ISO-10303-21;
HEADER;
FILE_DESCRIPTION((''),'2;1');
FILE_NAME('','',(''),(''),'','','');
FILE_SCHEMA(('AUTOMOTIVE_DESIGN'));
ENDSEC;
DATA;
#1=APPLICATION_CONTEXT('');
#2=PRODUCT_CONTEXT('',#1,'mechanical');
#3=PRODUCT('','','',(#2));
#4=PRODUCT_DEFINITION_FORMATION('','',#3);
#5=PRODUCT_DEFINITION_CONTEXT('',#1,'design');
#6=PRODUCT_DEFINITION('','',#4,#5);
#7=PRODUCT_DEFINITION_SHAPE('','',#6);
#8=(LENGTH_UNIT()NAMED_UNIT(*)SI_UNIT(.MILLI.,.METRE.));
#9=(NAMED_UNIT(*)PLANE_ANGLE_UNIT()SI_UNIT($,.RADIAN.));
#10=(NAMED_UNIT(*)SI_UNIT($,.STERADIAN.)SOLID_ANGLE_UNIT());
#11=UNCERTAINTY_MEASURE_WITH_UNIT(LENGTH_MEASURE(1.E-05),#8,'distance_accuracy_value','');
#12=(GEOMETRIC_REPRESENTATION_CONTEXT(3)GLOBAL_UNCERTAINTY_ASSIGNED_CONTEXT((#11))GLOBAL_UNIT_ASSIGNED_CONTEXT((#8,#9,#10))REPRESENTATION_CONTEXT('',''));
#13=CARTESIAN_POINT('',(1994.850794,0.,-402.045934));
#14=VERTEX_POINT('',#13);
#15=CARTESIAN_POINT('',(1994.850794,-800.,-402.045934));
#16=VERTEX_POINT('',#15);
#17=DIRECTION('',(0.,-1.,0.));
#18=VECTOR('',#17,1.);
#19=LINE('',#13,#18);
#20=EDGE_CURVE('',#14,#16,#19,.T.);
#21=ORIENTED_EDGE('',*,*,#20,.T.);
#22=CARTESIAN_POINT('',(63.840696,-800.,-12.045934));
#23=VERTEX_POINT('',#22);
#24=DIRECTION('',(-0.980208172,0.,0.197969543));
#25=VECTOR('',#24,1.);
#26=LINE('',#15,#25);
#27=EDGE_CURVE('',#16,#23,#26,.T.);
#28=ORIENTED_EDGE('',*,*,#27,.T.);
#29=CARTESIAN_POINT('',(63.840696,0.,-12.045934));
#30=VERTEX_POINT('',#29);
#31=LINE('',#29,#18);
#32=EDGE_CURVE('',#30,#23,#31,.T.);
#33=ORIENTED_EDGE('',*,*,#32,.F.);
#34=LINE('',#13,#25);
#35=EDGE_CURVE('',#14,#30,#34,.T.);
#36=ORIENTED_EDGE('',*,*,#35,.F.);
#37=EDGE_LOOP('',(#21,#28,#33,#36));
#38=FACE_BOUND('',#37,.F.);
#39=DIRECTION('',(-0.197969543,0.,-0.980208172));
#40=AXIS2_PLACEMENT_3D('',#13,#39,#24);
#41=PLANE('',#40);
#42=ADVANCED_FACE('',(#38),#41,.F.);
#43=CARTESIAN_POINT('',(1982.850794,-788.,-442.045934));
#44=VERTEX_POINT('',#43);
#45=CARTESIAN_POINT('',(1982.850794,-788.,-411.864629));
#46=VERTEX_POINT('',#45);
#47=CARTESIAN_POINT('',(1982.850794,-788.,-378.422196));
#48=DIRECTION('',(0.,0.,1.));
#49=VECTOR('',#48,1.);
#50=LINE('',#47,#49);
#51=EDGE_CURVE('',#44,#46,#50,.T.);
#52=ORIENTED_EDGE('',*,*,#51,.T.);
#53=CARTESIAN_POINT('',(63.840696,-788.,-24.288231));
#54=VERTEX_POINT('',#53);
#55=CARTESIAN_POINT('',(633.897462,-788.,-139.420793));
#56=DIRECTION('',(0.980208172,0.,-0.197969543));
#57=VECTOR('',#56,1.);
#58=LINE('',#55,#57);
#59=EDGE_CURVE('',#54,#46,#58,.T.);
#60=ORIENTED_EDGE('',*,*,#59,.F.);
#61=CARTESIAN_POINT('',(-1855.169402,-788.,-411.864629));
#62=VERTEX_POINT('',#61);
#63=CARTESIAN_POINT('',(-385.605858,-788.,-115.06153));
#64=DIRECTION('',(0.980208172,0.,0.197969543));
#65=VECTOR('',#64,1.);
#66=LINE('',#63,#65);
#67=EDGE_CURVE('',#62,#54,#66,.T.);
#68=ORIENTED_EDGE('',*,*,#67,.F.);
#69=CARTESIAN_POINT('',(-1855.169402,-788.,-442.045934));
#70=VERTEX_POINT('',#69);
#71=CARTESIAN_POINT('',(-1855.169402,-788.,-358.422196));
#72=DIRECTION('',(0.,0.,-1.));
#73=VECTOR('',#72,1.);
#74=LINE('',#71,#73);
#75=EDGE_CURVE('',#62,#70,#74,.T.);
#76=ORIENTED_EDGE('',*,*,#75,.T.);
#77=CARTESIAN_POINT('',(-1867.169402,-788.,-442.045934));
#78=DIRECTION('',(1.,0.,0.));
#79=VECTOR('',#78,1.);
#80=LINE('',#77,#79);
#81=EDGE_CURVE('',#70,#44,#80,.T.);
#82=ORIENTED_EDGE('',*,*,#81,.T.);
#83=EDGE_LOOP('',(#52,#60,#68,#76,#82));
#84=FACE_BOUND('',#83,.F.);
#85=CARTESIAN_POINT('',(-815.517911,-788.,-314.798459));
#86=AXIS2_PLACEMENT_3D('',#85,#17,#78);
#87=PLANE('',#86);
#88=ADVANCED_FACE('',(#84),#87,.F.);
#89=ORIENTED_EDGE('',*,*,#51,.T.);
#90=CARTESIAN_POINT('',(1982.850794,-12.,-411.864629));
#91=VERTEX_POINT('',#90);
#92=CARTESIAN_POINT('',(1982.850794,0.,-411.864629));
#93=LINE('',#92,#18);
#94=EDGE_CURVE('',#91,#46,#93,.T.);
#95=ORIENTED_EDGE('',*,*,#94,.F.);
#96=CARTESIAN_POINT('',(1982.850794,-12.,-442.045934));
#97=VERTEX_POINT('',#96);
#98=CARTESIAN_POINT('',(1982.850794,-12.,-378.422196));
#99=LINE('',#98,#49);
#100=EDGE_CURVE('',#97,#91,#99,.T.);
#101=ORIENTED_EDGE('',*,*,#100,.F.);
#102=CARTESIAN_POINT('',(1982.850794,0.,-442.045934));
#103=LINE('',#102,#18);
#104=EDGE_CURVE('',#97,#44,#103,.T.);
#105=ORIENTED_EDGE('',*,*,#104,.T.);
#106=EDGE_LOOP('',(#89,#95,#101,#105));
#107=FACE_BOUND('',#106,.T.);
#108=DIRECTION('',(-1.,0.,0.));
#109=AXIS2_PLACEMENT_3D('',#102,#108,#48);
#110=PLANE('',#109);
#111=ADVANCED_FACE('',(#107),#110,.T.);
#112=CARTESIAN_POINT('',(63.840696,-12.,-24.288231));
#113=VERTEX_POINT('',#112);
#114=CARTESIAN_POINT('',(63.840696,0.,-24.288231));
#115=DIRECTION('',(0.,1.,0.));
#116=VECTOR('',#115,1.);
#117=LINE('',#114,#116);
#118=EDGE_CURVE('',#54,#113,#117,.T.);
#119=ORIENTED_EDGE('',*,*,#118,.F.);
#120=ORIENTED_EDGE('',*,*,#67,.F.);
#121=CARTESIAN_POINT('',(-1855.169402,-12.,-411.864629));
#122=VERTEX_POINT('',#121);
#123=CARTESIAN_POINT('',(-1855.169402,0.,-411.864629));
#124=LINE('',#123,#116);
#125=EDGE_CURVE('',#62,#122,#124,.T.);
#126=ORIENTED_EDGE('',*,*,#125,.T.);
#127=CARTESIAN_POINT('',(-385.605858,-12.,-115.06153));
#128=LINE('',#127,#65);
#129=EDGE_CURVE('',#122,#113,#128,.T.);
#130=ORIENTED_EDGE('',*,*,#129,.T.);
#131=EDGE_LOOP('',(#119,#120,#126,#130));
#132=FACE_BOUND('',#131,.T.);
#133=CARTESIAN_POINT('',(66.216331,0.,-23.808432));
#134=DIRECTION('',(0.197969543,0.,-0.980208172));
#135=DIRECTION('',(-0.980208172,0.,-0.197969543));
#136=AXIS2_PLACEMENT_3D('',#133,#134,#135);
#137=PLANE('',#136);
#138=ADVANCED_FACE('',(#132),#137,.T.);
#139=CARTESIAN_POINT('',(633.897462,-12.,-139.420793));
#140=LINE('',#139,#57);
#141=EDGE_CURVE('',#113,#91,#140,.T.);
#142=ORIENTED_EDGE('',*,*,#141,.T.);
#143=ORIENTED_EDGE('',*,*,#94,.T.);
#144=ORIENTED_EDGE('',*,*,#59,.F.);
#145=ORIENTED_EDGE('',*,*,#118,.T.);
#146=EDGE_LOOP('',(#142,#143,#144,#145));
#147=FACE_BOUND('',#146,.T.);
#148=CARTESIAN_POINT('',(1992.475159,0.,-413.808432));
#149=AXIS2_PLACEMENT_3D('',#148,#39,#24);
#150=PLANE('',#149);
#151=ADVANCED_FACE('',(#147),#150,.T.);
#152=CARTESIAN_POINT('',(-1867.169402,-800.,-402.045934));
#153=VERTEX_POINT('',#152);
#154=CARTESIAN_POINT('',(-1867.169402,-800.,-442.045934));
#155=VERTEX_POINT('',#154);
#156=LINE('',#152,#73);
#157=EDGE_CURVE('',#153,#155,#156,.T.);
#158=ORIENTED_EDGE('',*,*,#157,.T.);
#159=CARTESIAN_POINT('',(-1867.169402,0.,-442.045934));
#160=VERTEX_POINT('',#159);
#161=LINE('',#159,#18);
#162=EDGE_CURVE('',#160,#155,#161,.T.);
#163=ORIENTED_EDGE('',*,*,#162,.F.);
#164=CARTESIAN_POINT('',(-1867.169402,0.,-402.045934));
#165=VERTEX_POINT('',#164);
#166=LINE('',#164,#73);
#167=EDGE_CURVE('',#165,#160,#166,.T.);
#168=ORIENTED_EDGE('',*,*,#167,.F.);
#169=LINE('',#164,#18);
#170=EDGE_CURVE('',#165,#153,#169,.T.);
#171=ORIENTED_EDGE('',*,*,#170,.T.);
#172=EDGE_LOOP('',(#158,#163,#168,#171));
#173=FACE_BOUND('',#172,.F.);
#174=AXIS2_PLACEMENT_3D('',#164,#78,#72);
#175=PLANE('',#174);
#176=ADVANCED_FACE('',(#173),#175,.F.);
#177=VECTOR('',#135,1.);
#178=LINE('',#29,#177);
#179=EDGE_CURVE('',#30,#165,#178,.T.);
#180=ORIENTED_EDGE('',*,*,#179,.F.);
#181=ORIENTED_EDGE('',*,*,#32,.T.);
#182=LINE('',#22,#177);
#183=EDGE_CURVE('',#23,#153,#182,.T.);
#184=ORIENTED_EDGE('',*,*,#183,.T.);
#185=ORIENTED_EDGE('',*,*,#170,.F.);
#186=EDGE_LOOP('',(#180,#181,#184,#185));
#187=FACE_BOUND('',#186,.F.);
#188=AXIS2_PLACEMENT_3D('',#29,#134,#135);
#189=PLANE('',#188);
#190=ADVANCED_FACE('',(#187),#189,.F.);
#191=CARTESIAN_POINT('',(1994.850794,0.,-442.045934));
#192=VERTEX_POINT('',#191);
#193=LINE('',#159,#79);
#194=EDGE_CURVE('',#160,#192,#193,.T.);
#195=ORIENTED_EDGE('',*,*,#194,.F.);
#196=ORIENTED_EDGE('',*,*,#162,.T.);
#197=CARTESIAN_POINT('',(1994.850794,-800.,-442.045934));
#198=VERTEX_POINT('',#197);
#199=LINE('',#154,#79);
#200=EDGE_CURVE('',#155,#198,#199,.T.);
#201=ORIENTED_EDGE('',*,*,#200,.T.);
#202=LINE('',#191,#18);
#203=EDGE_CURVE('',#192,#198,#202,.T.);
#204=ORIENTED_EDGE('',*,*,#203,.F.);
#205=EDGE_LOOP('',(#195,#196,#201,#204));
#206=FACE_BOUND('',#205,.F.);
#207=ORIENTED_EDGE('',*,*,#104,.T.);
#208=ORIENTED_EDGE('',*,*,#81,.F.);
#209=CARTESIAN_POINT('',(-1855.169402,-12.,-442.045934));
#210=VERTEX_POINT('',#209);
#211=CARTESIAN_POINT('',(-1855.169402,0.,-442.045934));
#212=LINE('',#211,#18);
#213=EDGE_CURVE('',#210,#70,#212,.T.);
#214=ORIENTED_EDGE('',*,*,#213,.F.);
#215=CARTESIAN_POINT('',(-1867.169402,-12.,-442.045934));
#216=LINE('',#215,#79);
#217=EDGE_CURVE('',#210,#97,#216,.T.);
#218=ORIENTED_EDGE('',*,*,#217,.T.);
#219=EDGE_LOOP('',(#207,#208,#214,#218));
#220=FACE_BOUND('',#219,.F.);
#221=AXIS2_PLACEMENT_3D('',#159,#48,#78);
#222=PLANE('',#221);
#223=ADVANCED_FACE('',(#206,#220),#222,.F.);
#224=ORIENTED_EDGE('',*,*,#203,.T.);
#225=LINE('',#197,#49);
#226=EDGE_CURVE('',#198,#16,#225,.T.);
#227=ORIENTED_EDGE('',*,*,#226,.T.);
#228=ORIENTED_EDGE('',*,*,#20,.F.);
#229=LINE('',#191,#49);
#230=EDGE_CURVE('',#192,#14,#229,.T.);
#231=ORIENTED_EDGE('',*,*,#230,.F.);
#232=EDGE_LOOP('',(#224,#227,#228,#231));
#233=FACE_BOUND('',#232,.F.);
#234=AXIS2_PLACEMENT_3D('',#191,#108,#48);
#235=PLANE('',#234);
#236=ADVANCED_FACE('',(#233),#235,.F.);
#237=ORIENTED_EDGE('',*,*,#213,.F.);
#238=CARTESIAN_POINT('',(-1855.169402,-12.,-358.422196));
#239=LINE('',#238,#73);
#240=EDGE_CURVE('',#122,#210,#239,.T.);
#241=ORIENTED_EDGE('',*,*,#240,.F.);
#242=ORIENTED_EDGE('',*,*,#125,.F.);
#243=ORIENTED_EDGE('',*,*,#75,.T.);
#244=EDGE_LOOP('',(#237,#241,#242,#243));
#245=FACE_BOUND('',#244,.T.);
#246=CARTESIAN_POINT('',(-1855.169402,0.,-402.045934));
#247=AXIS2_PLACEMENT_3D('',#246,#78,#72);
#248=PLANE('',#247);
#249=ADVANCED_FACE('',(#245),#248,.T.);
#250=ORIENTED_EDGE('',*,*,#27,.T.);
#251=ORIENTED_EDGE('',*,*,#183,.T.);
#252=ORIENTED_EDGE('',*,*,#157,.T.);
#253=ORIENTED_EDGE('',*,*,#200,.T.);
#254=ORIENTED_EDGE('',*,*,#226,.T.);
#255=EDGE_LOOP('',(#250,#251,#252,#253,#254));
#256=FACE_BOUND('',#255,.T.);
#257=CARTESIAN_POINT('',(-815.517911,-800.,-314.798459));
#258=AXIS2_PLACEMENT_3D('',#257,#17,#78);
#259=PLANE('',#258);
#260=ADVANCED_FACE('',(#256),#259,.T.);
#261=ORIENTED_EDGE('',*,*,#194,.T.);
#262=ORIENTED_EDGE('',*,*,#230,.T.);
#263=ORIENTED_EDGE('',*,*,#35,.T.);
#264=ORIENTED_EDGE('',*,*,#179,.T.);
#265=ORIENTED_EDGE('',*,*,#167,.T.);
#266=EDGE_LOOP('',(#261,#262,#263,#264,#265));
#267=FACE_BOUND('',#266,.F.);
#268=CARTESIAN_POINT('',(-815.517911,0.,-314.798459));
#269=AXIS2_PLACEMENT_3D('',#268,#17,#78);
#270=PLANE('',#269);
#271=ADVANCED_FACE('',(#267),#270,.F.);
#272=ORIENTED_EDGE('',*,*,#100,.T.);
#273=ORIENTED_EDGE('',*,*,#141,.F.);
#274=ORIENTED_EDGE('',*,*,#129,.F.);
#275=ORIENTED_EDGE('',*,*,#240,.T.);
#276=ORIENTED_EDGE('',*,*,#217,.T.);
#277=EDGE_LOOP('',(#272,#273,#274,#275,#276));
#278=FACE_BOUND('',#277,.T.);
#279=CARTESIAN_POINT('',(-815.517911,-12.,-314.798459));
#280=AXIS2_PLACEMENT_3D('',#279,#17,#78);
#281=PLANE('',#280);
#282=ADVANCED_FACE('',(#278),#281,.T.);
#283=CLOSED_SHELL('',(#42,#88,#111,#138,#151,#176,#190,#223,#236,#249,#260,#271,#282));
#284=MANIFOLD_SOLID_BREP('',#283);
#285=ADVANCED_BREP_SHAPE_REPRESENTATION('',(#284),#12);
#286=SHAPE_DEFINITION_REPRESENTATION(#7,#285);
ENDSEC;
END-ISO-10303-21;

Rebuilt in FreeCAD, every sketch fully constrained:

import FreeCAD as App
import Part
import Sketcher

V = App.Vector


def faces_at(feature, points):
    """Names of the faces that lie closest to the given points."""
    faces = feature.Shape.Faces
    near = lambda p: min(range(len(faces)), key=lambda i: faces[i].distToShape(Part.Vertex(*p))[0])
    return sorted({f"Face{near(p) + 1}" for p in points})

doc = App.newDocument("Part")
params = doc.addObject("Spreadsheet::Sheet", "Params")
for row, (alias, value) in enumerate([
    ("sketch1_height", "40 mm"),
    ("sketch1_length", "1970 mm"),
    ("pad1_length", "800 mm"),
    ("thickness_wall", "12 mm"),
], start=1):
    params.set(f"A{row}", alias)
    params.set(f"B{row}", "=" + value)
    params.setAlias(f"B{row}", alias)

body = doc.addObject("PartDesign::Body", "Body")

# Sketch on XZ plane
sketch1 = body.newObject("Sketcher::SketchObject", "Sketch")
sketch1.AttachmentSupport = (doc.getObject("XZ_Plane"), [""])
sketch1.MapMode = "FlatFace"
sketch1.addGeometry([
    Part.LineSegment(V(63.840696, -12.045934, 0), V(-1867.169402, -402.045934, 0)),  # 0
    Part.LineSegment(V(-1867.169402, -402.045934, 0), V(-1867.169402, -442.045934, 0)),  # 1
    Part.LineSegment(V(-1867.169402, -442.045934, 0), V(1994.850794, -442.045934, 0)),  # 2
    Part.LineSegment(V(1994.850794, -442.045934, 0), V(1994.850794, -402.045934, 0)),  # 3
    Part.LineSegment(V(1994.850794, -402.045934, 0), V(63.840696, -12.045934, 0)),  # 4
], False)
sketch1.addConstraint([
    Sketcher.Constraint("Coincident", 0, 2, 1, 1),
    Sketcher.Constraint("Coincident", 1, 2, 2, 1),
    Sketcher.Constraint("Coincident", 2, 2, 3, 1),
    Sketcher.Constraint("Coincident", 3, 2, 4, 1),
    Sketcher.Constraint("Coincident", 4, 2, 0, 1),
    Sketcher.Constraint("Vertical", 1),
    Sketcher.Constraint("Horizontal", 2),
    Sketcher.Constraint("Vertical", 3),
    Sketcher.Constraint("Horizontal", 0, 2, 3, 2),
    Sketcher.Constraint("Equal", 0, 4),
    Sketcher.Constraint("DistanceY", 1, 2, 1, 1, 40.0),
    Sketcher.Constraint("Distance", 0, 1970.0),
    Sketcher.Constraint("DistanceY", 0, 2, 4, 2, 390.0),
    Sketcher.Constraint("DistanceX", 0, 2, -1, 1, 1867.169402),
    Sketcher.Constraint("DistanceY", 0, 2, -1, 1, 402.045934),
])
sketch1.setExpression("Constraints[10]", "Params.sketch1_height")
sketch1.setExpression("Constraints[11]", "Params.sketch1_length")
pad1 = body.newObject("PartDesign::Pad", "Pad")
pad1.Profile = sketch1
pad1.setExpression("Length", "Params.pad1_length")
doc.recompute()

thickness = body.newObject("PartDesign::Thickness", "Thickness")
thickness.Base = (pad1, faces_at(pad1, [(63.841, -400, -442.046)]))
thickness.setExpression("Value", "Params.thickness_wall")
thickness.Reversed = True
thickness.Join = "Arc"

doc.recompute()
